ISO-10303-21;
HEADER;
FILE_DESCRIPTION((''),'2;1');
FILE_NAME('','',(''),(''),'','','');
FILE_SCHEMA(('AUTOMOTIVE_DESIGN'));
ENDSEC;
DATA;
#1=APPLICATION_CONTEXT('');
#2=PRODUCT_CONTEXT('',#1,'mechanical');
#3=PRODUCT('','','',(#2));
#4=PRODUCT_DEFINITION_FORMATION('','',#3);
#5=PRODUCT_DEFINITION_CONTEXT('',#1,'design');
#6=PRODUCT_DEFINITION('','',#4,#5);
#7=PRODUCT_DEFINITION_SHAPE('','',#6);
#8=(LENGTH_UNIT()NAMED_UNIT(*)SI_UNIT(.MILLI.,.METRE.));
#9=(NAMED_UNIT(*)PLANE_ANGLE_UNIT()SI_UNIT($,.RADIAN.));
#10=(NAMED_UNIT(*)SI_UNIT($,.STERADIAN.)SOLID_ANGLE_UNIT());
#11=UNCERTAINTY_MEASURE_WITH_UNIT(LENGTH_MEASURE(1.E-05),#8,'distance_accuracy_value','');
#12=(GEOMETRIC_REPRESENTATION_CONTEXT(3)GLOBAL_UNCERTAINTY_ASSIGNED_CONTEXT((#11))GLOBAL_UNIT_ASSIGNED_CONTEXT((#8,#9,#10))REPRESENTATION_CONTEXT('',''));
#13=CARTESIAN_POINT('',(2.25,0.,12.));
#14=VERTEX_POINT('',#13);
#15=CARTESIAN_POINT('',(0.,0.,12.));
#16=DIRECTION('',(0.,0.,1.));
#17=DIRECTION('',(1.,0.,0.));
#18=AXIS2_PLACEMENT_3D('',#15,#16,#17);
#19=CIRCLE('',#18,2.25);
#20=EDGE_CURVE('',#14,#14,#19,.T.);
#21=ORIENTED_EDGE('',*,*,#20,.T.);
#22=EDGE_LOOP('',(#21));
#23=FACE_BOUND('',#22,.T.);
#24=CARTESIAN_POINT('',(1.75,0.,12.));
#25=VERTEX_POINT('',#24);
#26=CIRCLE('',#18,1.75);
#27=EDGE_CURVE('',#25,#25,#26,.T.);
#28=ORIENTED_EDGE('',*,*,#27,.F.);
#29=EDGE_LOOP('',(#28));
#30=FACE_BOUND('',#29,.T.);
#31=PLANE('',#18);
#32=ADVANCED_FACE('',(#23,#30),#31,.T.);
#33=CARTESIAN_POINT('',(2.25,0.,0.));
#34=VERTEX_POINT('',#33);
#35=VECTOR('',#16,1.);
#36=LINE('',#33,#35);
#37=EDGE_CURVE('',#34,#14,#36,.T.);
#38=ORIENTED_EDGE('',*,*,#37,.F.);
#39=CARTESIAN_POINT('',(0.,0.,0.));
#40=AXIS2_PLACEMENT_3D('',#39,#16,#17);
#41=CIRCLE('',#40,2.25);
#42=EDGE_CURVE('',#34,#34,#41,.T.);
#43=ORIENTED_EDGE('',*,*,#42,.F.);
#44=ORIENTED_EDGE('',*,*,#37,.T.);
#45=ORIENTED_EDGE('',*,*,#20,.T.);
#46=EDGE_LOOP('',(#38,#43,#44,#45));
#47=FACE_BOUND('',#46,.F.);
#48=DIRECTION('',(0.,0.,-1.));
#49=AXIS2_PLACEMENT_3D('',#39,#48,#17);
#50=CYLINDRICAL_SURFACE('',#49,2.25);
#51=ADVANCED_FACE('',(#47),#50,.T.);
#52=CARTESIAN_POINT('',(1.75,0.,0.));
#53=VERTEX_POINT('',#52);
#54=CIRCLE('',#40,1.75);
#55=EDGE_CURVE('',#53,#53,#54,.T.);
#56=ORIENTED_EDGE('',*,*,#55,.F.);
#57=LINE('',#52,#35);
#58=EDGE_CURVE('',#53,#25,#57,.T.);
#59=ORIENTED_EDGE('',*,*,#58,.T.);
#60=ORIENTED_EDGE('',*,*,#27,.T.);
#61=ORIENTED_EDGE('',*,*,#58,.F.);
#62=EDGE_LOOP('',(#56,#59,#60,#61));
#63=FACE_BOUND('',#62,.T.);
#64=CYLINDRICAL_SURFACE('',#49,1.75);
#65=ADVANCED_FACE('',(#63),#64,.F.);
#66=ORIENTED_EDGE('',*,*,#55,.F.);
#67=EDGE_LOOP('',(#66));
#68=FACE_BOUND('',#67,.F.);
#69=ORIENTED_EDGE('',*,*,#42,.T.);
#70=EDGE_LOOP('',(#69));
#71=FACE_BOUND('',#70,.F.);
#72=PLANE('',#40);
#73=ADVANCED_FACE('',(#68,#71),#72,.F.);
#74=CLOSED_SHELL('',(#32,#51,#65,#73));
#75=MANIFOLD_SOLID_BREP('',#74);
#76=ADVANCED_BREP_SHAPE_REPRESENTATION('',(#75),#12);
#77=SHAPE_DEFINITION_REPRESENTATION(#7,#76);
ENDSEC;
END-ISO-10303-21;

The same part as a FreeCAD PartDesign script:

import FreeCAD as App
import Part
import Sketcher

doc = App.newDocument("Part")
body = doc.addObject("PartDesign::Body", "Body")

sketch1 = body.newObject("Sketcher::SketchObject", "Sketch")
sketch1.AttachmentSupport = (doc.getObject("XY_Plane"), [""])
sketch1.MapMode = "FlatFace"
sketch1.addGeometry([
    Part.Circle(App.Vector(0, 0, 0), App.Vector(0, 0, 1), 2.2),
    Part.Circle(App.Vector(0, 0, 0), App.Vector(0, 0, 1), 1.8),
], False)
sketch1.addConstraint([
    Sketcher.Constraint("Coincident", 0, 3, -1, 1),
    Sketcher.Constraint("Coincident", 1, 3, -1, 1),
    Sketcher.Constraint("Diameter", 0, 4.5),
    Sketcher.Constraint("Diameter", 1, 3.5),
])
pad1 = body.newObject("PartDesign::Pad", "Pad")
pad1.Profile = sketch1
pad1.Length = 12

doc.recompute()
